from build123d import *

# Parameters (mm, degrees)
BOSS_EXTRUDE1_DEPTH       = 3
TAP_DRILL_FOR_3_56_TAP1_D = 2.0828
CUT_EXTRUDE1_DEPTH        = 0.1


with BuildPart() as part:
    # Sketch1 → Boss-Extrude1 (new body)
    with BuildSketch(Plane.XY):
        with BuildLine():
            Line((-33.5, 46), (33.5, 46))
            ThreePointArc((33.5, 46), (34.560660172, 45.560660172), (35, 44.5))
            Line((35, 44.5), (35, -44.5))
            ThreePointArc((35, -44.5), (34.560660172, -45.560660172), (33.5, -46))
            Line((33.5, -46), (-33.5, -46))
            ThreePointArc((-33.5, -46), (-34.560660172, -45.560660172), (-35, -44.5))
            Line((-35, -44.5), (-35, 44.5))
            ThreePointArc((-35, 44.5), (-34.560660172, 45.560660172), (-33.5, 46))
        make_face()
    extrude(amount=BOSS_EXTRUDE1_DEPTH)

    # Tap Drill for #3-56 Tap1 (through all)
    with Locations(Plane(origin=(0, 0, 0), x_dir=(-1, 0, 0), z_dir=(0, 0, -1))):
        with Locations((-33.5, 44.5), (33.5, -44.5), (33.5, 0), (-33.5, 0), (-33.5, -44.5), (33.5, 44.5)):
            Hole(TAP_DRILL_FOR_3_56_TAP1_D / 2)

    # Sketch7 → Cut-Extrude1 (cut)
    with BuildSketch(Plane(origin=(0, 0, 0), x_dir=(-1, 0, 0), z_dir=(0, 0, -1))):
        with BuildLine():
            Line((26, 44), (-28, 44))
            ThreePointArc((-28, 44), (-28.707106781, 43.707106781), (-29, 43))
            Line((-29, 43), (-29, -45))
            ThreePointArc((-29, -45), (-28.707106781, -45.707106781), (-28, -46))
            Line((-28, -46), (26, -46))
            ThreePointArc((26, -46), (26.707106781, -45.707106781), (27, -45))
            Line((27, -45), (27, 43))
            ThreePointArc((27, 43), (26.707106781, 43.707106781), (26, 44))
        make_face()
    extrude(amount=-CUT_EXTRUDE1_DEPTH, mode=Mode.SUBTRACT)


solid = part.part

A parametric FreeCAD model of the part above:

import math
import FreeCAD as App
import Part
import Sketcher

V = App.Vector
Q = App.Units.Quantity

doc = App.newDocument("Part")
body = doc.addObject("PartDesign::Body", "Body")

sketch1 = body.newObject("Sketcher::SketchObject", "Sketch")
sketch1.AttachmentSupport = (doc.getObject("XY_Plane"), [""])
sketch1.MapMode = "FlatFace"
sketch1.addGeometry([
    Part.LineSegment(V(33.5, 46, 0), V(-33.5, 46, 0)),
    Part.ArcOfCircle(Part.Circle(V(-33.5, 44.5, 0), V(0, 0, 1), 1.5), math.radians(90), math.radians(180)),
    Part.LineSegment(V(-35, 44.5, 0), V(-35, -44.5, 0)),
    Part.ArcOfCircle(Part.Circle(V(-33.5, -44.5, 0), V(0, 0, 1), 1.5), math.radians(180), math.radians(270)),
    Part.LineSegment(V(-33.5, -46, 0), V(33.5, -46, 0)),
    Part.ArcOfCircle(Part.Circle(V(33.5, -44.5, 0), V(0, 0, 1), 1.5), math.radians(-90), math.radians(0)),
    Part.LineSegment(V(35, -44.5, 0), V(35, 44.5, 0)),
    Part.ArcOfCircle(Part.Circle(V(33.5, 44.5, 0), V(0, 0, 1), 1.5), math.radians(0), math.radians(90)),
], False)
sketch1.addConstraint([
    Sketcher.Constraint("Tangent", 0, 2, 1, 1),
    Sketcher.Constraint("Tangent", 1, 2, 2, 1),
    Sketcher.Constraint("Tangent", 2, 2, 3, 1),
    Sketcher.Constraint("Tangent", 3, 2, 4, 1),
    Sketcher.Constraint("Tangent", 4, 2, 5, 1),
    Sketcher.Constraint("Tangent", 5, 2, 6, 1),
    Sketcher.Constraint("Tangent", 6, 2, 7, 1),
    Sketcher.Constraint("Tangent", 7, 2, 0, 1),
    Sketcher.Constraint("Horizontal", 0),
    Sketcher.Constraint("Vertical", 2),
    Sketcher.Constraint("Horizontal", 4),
    Sketcher.Constraint("Vertical", 6),
    Sketcher.Constraint("Equal", 1, 3),
    Sketcher.Constraint("Equal", 3, 5),
    Sketcher.Constraint("Equal", 5, 7),
    Sketcher.Constraint("Symmetric", 1, 3, 5, 3, -1, 1),
    Sketcher.Constraint("Radius", 1, Q("1.5 mm")),
    Sketcher.Constraint("DistanceX", 0, 2, 0, 1, Q("67 mm")),
    Sketcher.Constraint("DistanceY", 2, 2, 2, 1, Q("89 mm")),
])
pad1 = body.newObject("PartDesign::Pad", "Pad")
pad1.Profile = sketch1
pad1.Length = 3

sketch2 = body.newObject("Sketcher::SketchObject", "Sketch001")
sketch2.AttachmentSupport = (doc.getObject("XY_Plane"), [""])
sketch2.MapMode = "FlatFace"
sketch2.addGeometry([
    Part.Circle(V(33.5, 44.5, 0), V(0, 0, 1), 1),
    Part.Circle(V(-33.5, -44.5, 0), V(0, 0, 1), 1),
    Part.Circle(V(-33.5, 0, 0), V(0, 0, 1), 1),
    Part.Circle(V(33.5, 0, 0), V(0, 0, 1), 1),
    Part.Circle(V(33.5, -44.5, 0), V(0, 0, 1), 1),
    Part.Circle(V(-33.5, 44.5, 0), V(0, 0, 1), 1),
], False)
sketch2.addConstraint([
    Sketcher.Constraint("Equal", 0, 1),
    Sketcher.Constraint("Equal", 1, 2),
    Sketcher.Constraint("Equal", 2, 3),
    Sketcher.Constraint("Equal", 3, 4),
    Sketcher.Constraint("Equal", 4, 5),
    Sketcher.Constraint("Symmetric", 0, 3, 1, 3, -1, 1),
    Sketcher.Constraint("Symmetric", 2, 3, 3, 3, -1, 1),
    Sketcher.Constraint("Symmetric", 4, 3, 5, 3, -1, 1),
    Sketcher.Constraint("Symmetric", 1, 3, 4, 3, -2),
    Sketcher.Constraint("PointOnObject", 2, 3, -1),
    Sketcher.Constraint("Vertical", 1, 3, 2, 3),
    Sketcher.Constraint("DistanceX", 1, 3, 0, 3, Q("67 mm")),
    Sketcher.Constraint("DistanceY", 1, 3, 0, 3, Q("89 mm")),
    Sketcher.Constraint("Diameter", 0, Q("2.0828 mm")),
])
doc.recompute()
hole = body.newObject("PartDesign::Hole", "Hole")
hole.Profile = sketch2
hole.ThreadType = "None"
hole.Diameter = 2.0828
hole.DepthType = "ThroughAll"
hole.Reversed = True

sketch3 = body.newObject("Sketcher::SketchObject", "Sketch002")
sketch3.AttachmentSupport = (doc.getObject("XY_Plane"), [""])
sketch3.MapMode = "FlatFace"
sketch3.addGeometry([
    Part.LineSegment(V(-26, 44, 0), V(28, 44, 0)),
    Part.ArcOfCircle(Part.Circle(V(28, 43, 0), V(0, 0, 1), 1), math.radians(0), math.radians(90)),
    Part.LineSegment(V(29, 43, 0), V(29, -45, 0)),
    Part.ArcOfCircle(Part.Circle(V(28, -45, 0), V(0, 0, 1), 1), math.radians(-90), math.radians(0)),
    Part.LineSegment(V(28, -46, 0), V(-26, -46, 0)),
    Part.ArcOfCircle(Part.Circle(V(-26, -45, 0), V(0, 0, 1), 1), math.radians(-180), math.radians(-90)),
    Part.LineSegment(V(-27, -45, 0), V(-27, 43, 0)),
    Part.ArcOfCircle(Part.Circle(V(-26, 43, 0), V(0, 0, 1), 1), math.radians(90), math.radians(180)),
], False)
sketch3.addConstraint([
    Sketcher.Constraint("Tangent", 0, 2, 1, 2),
    Sketcher.Constraint("Tangent", 1, 1, 2, 1),
    Sketcher.Constraint("Tangent", 2, 2, 3, 2),
    Sketcher.Constraint("Tangent", 3, 1, 4, 1),
    Sketcher.Constraint("Tangent", 4, 2, 5, 2),
    Sketcher.Constraint("Tangent", 5, 1, 6, 1),
    Sketcher.Constraint("Tangent", 6, 2, 7, 2),
    Sketcher.Constraint("Tangent", 7, 1, 0, 1),
    Sketcher.Constraint("Horizontal", 0),
    Sketcher.Constraint("Vertical", 2),
    Sketcher.Constraint("Horizontal", 4),
    Sketcher.Constraint("Vertical", 6),
    Sketcher.Constraint("Equal", 1, 3),
    Sketcher.Constraint("Equal", 3, 5),
    Sketcher.Constraint("Equal", 5, 7),
    Sketcher.Constraint("Radius", 1, Q("1 mm")),
    Sketcher.Constraint("DistanceX", 0, 1, 0, 2, Q("54 mm")),
    Sketcher.Constraint("DistanceY", 2, 2, 2, 1, Q("88 mm")),
    Sketcher.Constraint("DistanceX", -1, 1, 1, 3, Q("28 mm")),
    Sketcher.Constraint("DistanceY", -1, 1, 1, 3, Q("43 mm")),
])
pocket1 = body.newObject("PartDesign::Pocket", "Pocket")
pocket1.Profile = sketch3
pocket1.Length = 0.1
pocket1.Reversed = True

doc.recompute()
